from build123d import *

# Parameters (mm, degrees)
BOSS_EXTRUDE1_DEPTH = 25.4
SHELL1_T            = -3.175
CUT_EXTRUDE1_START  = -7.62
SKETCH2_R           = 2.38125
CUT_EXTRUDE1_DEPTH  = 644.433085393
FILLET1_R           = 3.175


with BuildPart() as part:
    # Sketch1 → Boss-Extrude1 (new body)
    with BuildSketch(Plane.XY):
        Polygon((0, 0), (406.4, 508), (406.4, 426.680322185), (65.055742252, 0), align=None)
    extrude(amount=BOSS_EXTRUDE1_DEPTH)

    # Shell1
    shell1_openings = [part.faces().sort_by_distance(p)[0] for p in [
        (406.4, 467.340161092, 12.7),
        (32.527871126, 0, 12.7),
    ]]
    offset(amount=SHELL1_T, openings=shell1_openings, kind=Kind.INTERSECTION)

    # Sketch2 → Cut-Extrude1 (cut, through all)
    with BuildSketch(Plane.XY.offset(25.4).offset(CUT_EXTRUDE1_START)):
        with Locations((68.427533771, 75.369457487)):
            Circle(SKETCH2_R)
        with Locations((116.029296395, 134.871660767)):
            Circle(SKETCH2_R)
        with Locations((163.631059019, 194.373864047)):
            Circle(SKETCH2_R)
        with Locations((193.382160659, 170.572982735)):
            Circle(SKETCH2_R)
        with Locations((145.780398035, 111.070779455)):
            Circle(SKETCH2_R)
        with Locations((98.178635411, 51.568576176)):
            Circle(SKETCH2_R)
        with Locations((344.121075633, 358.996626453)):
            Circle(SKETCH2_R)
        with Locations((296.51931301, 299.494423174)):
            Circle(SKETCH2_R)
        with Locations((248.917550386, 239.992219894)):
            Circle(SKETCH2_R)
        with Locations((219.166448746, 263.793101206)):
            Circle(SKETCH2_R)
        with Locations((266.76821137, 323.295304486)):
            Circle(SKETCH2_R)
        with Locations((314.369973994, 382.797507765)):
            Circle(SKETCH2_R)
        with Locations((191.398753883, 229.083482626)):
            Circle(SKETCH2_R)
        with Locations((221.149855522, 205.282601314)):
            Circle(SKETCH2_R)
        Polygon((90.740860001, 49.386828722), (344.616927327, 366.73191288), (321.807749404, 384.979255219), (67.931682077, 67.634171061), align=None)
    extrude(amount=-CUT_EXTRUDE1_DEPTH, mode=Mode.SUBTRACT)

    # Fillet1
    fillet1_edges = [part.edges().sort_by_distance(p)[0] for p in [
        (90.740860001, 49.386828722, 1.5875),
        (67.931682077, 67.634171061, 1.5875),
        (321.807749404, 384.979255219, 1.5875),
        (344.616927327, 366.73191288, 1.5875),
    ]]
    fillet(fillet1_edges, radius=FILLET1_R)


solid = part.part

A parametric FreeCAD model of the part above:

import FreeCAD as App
import Part
import Sketcher

V = App.Vector
Q = App.Units.Quantity


def edges_at(feature, points):
    """Names of the edges that pass closest to the given points."""
    edges = feature.Shape.Edges
    near = lambda p: min(range(len(edges)), key=lambda i: edges[i].distToShape(Part.Vertex(*p))[0])
    return sorted({f"Edge{near(p) + 1}" for p in points})


def faces_at(feature, points):
    """Names of the faces that lie closest to the given points."""
    faces = feature.Shape.Faces
    near = lambda p: min(range(len(faces)), key=lambda i: faces[i].distToShape(Part.Vertex(*p))[0])
    return sorted({f"Face{near(p) + 1}" for p in points})

doc = App.newDocument("Part")
body = doc.addObject("PartDesign::Body", "Body")

sketch1 = body.newObject("Sketcher::SketchObject", "Sketch")
sketch1.AttachmentSupport = (doc.getObject("XY_Plane"), [""])
sketch1.MapMode = "FlatFace"
sketch1.addGeometry([
    Part.LineSegment(V(406, 508, 0), V(0, 0, 0)),
    Part.LineSegment(V(0, 0, 0), V(65, 0, 0)),
    Part.LineSegment(V(65, 0, 0), V(406, 427, 0)),
    Part.LineSegment(V(406, 427, 0), V(406, 508, 0)),
], False)
sketch1.addConstraint([
    Sketcher.Constraint("Coincident", 0, 2, 1, 1),
    Sketcher.Constraint("Coincident", 1, 2, 2, 1),
    Sketcher.Constraint("Coincident", 2, 2, 3, 1),
    Sketcher.Constraint("Coincident", 3, 2, 0, 1),
    Sketcher.Constraint("Horizontal", 1),
    Sketcher.Constraint("Vertical", 3),
    Sketcher.Constraint("Coincident", 0, 2, -1, 1),
    Sketcher.Constraint("Parallel", 0, 2),
    Sketcher.Constraint("DistanceX", -1, 1, 2, 2, Q("16 in")),
    Sketcher.Constraint("DistanceY", -1, 1, 3, 2, Q("20 in")),
    Sketcher.Constraint("DistanceX", 1, 1, 1, 2, Q("65.055742 mm")),
])
pad1 = body.newObject("PartDesign::Pad", "Pad")
pad1.Profile = sketch1
pad1.Length = Q("1 in")
doc.recompute()

thickness = body.newObject("PartDesign::Thickness", "Thickness")
thickness.Base = (pad1, faces_at(pad1, [(406.4, 467.34, 12.7), (32.528, 0, 12.7)]))
thickness.Value = Q("0.125 in")
thickness.Reversed = True
thickness.Join = "Intersection"

sketch2 = body.newObject("Sketcher::SketchObject", "Sketch001")
sketch2.AttachmentSupport = (doc.getObject("XY_Plane"), [""])
sketch2.MapMode = "FlatFace"
sketch2.AttachmentOffset = App.Placement(V(0, 0, 0.7 * 25.4), App.Rotation())
sketch2.addGeometry([
    Part.Circle(V(68.4, 75.4, 0), V(0, 0, 1), 2.4),
    Part.Circle(V(116, 134.9, 0), V(0, 0, 1), 2.4),
    Part.Circle(V(163.6, 194.4, 0), V(0, 0, 1), 2.4),
    Part.Circle(V(193.4, 170.6, 0), V(0, 0, 1), 2.4),
    Part.Circle(V(145.8, 111.1, 0), V(0, 0, 1), 2.4),
    Part.Circle(V(98.2, 51.6, 0), V(0, 0, 1), 2.4),
    Part.Circle(V(344.1, 359, 0), V(0, 0, 1), 2.4),
    Part.Circle(V(296.5, 299.5, 0), V(0, 0, 1), 2.4),
    Part.Circle(V(248.9, 240, 0), V(0, 0, 1), 2.4),
    Part.Circle(V(219.2, 263.8, 0), V(0, 0, 1), 2.4),
    Part.Circle(V(266.8, 323.3, 0), V(0, 0, 1), 2.4),
    Part.Circle(V(314.4, 382.8, 0), V(0, 0, 1), 2.4),
    Part.Circle(V(191.4, 229.1, 0), V(0, 0, 1), 2.4),
    Part.Circle(V(221.1, 205.3, 0), V(0, 0, 1), 2.4),
    Part.LineSegment(V(90.7, 49.4, 0), V(344.6, 366.7, 0)),
    Part.LineSegment(V(344.6, 366.7, 0), V(321.8, 385, 0)),
    Part.LineSegment(V(321.8, 385, 0), V(67.9, 67.6, 0)),
    Part.LineSegment(V(67.9, 67.6, 0), V(90.7, 49.4, 0)),
], False)
sketch2.addConstraint([
    Sketcher.Constraint("Coincident", 14, 2, 15, 1),
    Sketcher.Constraint("Coincident", 15, 2, 16, 1),
    Sketcher.Constraint("Coincident", 16, 2, 17, 1),
    Sketcher.Constraint("Coincident", 17, 2, 14, 1),
    Sketcher.Constraint("Equal", 0, 1),
    Sketcher.Constraint("Equal", 1, 2),
    Sketcher.Constraint("Equal", 2, 3),
    Sketcher.Constraint("Equal", 3, 4),
    Sketcher.Constraint("Equal", 4, 5),
    Sketcher.Constraint("Equal", 5, 6),
    Sketcher.Constraint("Equal", 6, 7),
    Sketcher.Constraint("Equal", 7, 8),
    Sketcher.Constraint("Equal", 8, 9),
    Sketcher.Constraint("Equal", 9, 10),
    Sketcher.Constraint("Equal", 10, 11),
    Sketcher.Constraint("Equal", 11, 12),
    Sketcher.Constraint("Equal", 12, 13),
    Sketcher.Constraint("Perpendicular", 14, 15),
    Sketcher.Constraint("Perpendicular", 15, 16),
    Sketcher.Constraint("Perpendicular", 16, 17),
    Sketcher.Constraint("Distance", 14, Q("16 in")),
    Sketcher.Constraint("Diameter", 0, Q("0.1875 in")),
    Sketcher.Constraint("Distance", 15, Q("1.15 in")),
    Sketcher.Constraint("DistanceX", -1, 1, 4, 3, Q("145.780398 mm")),
    Sketcher.Constraint("DistanceY", -1, 1, 9, 3, Q("263.793101 mm")),
    Sketcher.Constraint("DistanceY", -1, 1, 13, 3, Q("205.282601 mm")),
    Sketcher.Constraint("DistanceX", 2, 3, 3, 3, Q("29.751102 mm")),
    Sketcher.Constraint("DistanceX", 1, 3, 4, 3, Q("29.751102 mm")),
    Sketcher.Constraint("DistanceX", 0, 3, 5, 3, Q("29.751102 mm")),
    Sketcher.Constraint("DistanceX", 9, 3, 8, 3, Q("29.751102 mm")),
    Sketcher.Constraint("DistanceX", 10, 3, 7, 3, Q("29.751102 mm")),
    Sketcher.Constraint("DistanceX", 11, 3, 6, 3, Q("29.751102 mm")),
    Sketcher.Constraint("DistanceY", 3, 3, 12, 3, Q("58.5105 mm")),
    Sketcher.Constraint("DistanceX", 12, 3, 13, 3, Q("29.751102 mm")),
    Sketcher.Constraint("DistanceY", -1, 1, 1, 3, Q("134.871661 mm")),
    Sketcher.Constraint("DistanceX", -1, 1, 2, 3, Q("163.631059 mm")),
    Sketcher.Constraint("DistanceY", -1, 1, 4, 3, Q("111.070779 mm")),
    Sketcher.Constraint("DistanceX", -1, 1, 8, 3, Q("248.91755 mm")),
    Sketcher.Constraint("DistanceY", -1, 1, 8, 3, Q("239.99222 mm")),
    Sketcher.Constraint("DistanceX", -1, 1, 10, 3, Q("266.768211 mm")),
    Sketcher.Constraint("DistanceX", -1, 1, 15, 2, Q("321.807749 mm")),
    Sketcher.Constraint("DistanceY", -1, 1, 16, 2, Q("67.634171 mm")),
    Sketcher.Constraint("DistanceX", -1, 1, 17, 2, Q("90.74086 mm")),
    Sketcher.Constraint("DistanceY", 3, 3, 2, 3, Q("23.800881 mm")),
    Sketcher.Constraint("DistanceY", 1, 3, 3, 3, Q("35.701322 mm")),
    Sketcher.Constraint("DistanceY", 0, 3, 4, 3, Q("35.701322 mm")),
    Sketcher.Constraint("DistanceY", 5, 3, 0, 3, Q("23.800881 mm")),
    Sketcher.Constraint("DistanceX", 5, 3, 1, 3, Q("17.850661 mm")),
    Sketcher.Constraint("DistanceX", 1, 3, 6, 3, Q("228.091779 mm")),
    Sketcher.Constraint("DistanceY", 5, 3, 6, 3, Q("307.42805 mm")),
    Sketcher.Constraint("DistanceY", 3, 3, 7, 3, Q("128.92144 mm")),
    Sketcher.Constraint("DistanceY", 7, 3, 10, 3, Q("23.800881 mm")),
    Sketcher.Constraint("DistanceY", 6, 3, 11, 3, Q("23.800881 mm")),
    Sketcher.Constraint("DistanceX", -1, 1, 12, 3, Q("191.398754 mm")),
])
pocket1 = body.newObject("PartDesign::Pocket", "Pocket")
pocket1.Profile = sketch2
pocket1.Type = "ThroughAll"
doc.recompute()

fillet = body.newObject("PartDesign::Fillet", "Fillet")
fillet.Base = (pocket1, edges_at(pocket1, [
    (90.741, 49.387, 1.587),
    (67.932, 67.634, 1.587),
    (321.808, 384.979, 1.587),
    (344.617, 366.732, 1.587),
]))
fillet.Radius = Q("0.125 in")

doc.recompute()
